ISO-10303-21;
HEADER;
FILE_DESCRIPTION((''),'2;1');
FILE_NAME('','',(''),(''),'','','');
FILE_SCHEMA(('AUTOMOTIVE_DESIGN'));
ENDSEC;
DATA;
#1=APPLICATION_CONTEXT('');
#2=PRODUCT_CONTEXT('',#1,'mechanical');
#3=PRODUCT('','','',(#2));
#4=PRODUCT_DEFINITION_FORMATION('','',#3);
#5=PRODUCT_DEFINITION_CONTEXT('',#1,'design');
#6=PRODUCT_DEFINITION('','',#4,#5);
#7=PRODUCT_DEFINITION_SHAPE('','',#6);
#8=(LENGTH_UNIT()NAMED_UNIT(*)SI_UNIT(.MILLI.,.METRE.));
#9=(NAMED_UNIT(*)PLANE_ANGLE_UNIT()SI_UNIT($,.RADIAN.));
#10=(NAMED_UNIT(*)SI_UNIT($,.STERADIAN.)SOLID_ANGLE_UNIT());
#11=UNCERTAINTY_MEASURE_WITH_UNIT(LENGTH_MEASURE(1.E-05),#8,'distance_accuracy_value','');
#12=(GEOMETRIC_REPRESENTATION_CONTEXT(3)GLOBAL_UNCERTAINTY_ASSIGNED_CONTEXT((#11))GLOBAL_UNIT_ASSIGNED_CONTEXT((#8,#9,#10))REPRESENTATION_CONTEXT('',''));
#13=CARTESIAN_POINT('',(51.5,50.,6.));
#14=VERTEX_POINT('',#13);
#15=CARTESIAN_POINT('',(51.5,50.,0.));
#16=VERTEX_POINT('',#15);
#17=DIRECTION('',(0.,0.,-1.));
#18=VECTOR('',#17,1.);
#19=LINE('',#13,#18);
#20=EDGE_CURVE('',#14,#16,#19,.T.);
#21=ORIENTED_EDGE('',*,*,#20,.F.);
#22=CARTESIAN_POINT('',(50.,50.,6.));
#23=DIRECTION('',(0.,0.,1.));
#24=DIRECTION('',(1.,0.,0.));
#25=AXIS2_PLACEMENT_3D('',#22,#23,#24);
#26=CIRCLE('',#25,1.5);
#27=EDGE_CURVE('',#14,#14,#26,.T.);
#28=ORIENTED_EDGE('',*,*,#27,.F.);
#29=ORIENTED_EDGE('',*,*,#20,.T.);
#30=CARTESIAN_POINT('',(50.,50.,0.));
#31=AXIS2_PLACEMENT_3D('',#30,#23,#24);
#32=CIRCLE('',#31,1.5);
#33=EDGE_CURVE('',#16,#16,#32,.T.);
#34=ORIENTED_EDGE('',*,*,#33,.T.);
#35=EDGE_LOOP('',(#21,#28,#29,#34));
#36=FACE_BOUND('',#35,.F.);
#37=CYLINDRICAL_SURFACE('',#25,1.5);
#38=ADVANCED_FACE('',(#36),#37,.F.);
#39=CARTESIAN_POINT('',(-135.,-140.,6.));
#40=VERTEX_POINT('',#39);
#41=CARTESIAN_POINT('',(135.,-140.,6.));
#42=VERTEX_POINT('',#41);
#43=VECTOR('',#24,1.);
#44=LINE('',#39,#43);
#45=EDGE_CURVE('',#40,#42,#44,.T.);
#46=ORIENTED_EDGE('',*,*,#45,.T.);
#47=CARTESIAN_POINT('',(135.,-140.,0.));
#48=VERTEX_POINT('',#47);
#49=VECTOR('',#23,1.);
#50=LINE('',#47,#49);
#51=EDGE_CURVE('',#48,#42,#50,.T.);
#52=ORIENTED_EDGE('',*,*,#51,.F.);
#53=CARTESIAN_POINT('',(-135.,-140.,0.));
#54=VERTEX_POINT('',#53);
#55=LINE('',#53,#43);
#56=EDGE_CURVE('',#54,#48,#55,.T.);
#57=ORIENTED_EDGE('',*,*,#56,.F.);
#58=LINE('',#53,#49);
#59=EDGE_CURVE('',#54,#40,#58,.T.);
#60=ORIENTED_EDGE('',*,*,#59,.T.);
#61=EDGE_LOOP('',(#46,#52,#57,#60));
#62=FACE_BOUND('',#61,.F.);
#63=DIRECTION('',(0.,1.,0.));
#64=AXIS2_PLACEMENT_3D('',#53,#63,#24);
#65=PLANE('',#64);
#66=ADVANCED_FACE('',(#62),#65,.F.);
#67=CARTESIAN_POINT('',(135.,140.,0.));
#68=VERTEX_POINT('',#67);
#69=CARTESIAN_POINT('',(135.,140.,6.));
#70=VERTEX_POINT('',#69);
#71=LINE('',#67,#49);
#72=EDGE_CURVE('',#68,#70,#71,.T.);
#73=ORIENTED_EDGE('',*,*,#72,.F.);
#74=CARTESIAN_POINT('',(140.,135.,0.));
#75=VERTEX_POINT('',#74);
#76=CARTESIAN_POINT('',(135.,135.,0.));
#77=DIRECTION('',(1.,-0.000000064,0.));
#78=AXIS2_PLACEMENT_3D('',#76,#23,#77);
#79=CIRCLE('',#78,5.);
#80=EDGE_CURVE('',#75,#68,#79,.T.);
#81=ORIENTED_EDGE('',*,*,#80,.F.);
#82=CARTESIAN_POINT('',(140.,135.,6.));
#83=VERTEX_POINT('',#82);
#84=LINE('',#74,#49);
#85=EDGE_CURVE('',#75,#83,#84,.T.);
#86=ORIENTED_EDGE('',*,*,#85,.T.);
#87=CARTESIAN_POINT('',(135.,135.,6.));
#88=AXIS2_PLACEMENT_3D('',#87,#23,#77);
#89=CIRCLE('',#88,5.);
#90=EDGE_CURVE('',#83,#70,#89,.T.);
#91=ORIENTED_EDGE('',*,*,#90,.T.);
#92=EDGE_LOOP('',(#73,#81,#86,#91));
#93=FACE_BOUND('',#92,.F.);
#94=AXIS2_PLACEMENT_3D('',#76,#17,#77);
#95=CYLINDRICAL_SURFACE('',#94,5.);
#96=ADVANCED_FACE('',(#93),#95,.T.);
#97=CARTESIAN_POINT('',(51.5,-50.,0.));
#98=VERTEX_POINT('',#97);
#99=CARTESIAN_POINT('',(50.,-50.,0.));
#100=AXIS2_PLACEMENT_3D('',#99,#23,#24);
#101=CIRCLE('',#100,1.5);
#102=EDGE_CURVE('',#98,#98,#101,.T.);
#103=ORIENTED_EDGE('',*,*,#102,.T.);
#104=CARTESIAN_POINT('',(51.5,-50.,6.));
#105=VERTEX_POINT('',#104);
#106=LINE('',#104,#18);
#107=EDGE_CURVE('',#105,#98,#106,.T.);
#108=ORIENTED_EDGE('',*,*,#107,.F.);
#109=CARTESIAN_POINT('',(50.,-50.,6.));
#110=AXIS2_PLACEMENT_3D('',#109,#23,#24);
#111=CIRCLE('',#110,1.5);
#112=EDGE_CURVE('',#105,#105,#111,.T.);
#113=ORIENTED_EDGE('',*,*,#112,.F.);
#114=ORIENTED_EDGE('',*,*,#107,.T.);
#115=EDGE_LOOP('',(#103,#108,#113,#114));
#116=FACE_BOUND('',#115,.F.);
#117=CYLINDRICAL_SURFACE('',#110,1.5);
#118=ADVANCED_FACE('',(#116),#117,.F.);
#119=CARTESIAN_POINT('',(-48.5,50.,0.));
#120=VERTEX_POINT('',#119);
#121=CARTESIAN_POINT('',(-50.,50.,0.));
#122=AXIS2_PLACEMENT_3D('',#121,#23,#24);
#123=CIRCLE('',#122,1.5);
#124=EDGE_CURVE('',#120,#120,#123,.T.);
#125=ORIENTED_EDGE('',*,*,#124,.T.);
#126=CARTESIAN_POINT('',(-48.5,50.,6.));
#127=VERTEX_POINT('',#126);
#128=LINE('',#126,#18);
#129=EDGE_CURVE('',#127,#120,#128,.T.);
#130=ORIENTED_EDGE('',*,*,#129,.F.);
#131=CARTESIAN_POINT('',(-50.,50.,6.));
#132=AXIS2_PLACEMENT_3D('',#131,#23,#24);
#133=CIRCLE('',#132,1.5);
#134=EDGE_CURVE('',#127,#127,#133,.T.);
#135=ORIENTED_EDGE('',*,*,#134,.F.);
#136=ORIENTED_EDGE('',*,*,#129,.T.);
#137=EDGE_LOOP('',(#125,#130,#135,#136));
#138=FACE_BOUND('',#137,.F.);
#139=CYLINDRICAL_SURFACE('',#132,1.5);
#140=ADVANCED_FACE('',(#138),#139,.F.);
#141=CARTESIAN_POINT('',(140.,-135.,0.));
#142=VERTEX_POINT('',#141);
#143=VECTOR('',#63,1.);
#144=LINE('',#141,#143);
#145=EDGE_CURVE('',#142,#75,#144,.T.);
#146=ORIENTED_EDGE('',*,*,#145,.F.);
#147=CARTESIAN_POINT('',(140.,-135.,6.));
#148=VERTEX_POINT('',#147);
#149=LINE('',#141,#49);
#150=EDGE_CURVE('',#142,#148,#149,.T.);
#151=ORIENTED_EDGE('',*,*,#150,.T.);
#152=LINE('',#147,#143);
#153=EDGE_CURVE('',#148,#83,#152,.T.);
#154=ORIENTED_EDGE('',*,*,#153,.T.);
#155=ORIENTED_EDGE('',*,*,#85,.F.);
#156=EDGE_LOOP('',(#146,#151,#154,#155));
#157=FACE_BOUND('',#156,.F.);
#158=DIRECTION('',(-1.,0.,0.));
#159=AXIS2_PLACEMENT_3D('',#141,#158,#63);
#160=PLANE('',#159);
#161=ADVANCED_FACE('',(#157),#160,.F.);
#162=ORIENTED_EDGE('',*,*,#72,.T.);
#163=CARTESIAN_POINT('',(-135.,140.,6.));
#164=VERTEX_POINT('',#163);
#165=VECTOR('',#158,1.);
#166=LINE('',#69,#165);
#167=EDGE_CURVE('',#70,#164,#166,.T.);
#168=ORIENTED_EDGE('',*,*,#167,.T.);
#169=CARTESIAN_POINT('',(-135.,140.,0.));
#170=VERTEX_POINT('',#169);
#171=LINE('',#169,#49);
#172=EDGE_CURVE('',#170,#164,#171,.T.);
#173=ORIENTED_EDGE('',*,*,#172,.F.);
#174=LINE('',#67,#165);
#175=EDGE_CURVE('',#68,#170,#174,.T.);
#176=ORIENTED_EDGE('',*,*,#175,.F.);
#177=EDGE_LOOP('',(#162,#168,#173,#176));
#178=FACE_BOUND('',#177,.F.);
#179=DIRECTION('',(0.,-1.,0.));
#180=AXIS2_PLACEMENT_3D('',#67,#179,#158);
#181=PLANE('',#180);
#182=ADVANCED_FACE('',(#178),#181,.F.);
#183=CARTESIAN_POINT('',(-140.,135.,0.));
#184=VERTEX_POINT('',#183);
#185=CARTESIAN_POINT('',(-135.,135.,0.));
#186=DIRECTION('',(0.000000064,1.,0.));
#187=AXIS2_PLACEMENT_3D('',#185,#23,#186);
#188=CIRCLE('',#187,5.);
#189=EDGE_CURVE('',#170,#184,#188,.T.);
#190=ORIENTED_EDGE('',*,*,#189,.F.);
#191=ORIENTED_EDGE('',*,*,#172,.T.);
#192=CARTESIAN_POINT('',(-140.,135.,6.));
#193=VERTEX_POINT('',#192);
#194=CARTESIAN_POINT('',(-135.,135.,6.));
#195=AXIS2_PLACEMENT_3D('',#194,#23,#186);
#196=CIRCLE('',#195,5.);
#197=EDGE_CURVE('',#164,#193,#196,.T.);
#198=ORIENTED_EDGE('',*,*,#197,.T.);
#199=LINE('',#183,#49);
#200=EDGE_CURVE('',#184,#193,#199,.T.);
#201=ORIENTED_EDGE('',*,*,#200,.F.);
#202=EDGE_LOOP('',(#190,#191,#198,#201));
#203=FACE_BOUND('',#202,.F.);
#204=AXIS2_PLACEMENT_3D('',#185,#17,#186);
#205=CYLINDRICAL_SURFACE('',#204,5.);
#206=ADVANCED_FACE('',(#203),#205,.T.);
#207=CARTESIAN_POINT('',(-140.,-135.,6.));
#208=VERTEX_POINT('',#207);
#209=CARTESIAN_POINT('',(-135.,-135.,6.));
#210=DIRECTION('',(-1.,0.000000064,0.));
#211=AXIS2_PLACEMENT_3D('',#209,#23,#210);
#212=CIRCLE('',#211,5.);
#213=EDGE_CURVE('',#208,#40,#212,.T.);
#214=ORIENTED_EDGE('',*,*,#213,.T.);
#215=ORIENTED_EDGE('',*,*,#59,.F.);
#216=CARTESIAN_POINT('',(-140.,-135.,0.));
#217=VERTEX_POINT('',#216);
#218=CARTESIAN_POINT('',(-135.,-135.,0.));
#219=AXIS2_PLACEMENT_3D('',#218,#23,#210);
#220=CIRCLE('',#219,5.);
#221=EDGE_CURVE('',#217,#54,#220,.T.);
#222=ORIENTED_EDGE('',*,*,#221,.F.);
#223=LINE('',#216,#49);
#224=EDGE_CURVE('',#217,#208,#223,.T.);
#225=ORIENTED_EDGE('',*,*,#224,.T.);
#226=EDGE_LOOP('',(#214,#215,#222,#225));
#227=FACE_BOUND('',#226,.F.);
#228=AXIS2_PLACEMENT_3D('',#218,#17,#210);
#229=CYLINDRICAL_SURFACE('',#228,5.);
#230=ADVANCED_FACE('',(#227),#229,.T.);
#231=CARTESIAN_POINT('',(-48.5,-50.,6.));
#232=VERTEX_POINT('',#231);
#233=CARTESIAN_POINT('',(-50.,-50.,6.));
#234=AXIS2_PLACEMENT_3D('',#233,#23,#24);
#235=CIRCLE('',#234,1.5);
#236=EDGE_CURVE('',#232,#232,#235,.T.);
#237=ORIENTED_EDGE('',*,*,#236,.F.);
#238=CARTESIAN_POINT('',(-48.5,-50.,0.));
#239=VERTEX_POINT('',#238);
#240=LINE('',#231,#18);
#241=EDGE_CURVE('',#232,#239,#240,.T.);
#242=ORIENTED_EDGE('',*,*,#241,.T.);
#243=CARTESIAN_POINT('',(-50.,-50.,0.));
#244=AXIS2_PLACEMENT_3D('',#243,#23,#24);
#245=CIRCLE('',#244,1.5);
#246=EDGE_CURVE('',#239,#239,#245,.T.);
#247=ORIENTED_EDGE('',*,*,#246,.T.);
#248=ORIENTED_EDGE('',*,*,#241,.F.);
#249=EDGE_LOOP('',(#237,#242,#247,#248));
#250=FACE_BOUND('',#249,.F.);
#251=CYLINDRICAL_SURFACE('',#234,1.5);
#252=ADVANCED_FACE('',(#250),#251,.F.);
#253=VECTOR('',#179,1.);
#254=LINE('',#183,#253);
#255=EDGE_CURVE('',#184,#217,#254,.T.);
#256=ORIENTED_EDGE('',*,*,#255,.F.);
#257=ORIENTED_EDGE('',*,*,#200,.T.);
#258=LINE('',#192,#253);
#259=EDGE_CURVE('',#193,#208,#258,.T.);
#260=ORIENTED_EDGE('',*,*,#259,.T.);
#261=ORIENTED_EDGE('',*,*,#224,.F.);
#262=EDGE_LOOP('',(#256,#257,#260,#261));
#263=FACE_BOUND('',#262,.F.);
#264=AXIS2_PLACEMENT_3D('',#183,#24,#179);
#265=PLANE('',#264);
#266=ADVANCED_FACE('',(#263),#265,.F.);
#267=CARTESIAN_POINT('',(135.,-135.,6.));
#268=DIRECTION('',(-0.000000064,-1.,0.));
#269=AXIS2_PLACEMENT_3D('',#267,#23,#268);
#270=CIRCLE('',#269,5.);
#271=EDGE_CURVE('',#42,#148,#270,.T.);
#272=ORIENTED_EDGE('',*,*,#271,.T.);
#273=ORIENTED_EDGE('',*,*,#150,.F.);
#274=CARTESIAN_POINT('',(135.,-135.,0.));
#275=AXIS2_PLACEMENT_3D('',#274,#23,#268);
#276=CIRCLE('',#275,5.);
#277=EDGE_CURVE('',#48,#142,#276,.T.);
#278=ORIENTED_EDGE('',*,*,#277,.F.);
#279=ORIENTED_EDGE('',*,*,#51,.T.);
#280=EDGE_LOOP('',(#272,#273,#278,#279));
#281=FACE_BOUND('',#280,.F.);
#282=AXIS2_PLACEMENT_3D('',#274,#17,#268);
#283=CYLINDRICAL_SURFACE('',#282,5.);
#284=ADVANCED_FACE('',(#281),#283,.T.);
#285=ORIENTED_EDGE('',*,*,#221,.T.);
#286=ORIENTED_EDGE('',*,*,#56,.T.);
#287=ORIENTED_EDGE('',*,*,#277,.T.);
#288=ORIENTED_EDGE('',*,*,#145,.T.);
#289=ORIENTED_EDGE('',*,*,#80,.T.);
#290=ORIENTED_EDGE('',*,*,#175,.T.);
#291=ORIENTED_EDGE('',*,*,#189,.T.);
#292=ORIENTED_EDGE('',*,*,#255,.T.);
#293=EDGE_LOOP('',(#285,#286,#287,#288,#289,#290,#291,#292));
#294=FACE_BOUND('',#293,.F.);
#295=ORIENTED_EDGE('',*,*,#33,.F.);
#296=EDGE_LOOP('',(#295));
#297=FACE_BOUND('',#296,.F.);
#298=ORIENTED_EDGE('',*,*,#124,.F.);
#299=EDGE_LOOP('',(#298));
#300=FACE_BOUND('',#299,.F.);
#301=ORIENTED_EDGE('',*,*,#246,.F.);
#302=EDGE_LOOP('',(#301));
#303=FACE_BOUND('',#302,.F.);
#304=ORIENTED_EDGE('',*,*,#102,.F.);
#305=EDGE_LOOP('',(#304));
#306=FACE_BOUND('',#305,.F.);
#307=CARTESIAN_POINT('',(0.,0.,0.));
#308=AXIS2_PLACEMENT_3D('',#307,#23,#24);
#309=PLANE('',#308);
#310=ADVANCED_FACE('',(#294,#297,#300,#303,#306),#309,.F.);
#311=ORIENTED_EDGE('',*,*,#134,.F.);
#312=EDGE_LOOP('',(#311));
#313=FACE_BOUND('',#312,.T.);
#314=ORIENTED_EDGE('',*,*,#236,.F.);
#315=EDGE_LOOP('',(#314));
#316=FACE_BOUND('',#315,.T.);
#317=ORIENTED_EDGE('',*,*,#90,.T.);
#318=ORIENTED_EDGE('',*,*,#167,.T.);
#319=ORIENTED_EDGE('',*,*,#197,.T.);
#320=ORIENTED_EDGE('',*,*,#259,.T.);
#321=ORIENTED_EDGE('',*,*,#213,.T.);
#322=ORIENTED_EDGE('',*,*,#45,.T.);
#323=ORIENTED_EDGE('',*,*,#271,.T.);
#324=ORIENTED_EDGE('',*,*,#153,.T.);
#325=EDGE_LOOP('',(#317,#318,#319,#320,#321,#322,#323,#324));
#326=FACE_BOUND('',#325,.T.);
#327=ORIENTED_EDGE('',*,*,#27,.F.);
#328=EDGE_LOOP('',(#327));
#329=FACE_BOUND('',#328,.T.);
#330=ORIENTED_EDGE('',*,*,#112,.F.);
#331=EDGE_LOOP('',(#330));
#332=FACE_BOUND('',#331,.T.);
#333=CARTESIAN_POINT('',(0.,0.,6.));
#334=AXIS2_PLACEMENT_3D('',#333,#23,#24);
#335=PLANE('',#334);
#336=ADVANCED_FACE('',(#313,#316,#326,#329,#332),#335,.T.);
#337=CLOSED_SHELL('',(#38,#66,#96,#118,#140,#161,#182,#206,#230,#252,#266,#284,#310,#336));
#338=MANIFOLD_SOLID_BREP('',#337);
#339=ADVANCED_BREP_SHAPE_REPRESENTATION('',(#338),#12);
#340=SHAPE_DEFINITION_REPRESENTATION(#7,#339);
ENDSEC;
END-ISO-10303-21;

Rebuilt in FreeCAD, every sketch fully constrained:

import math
import FreeCAD as App
import Part
import Sketcher
from FreeCAD import Vector
Q = App.Units.Quantity

doc = App.newDocument("Part")
body = doc.addObject("PartDesign::Body", "Body")

# Sketch on XY plane
sketch1 = body.newObject("Sketcher::SketchObject", "Sketch")
sketch1.AttachmentSupport = (doc.getObject("XY_Plane"), [""])
sketch1.MapMode = "FlatFace"
sketch1.addGeometry([
    Part.LineSegment(Vector(-135, -140, 0), Vector(135, -140, 0)),  # 0
    Part.ArcOfCircle(Part.Circle(Vector(135, -135, 0), Vector(0, 0, 1), 5), math.radians(-90), math.radians(0)),  # 1
    Part.LineSegment(Vector(140, -135, 0), Vector(140, 135, 0)),  # 2
    Part.ArcOfCircle(Part.Circle(Vector(135, 135, 0), Vector(0, 0, 1), 5), math.radians(0), math.radians(90)),  # 3
    Part.LineSegment(Vector(135, 140, 0), Vector(-135, 140, 0)),  # 4
    Part.ArcOfCircle(Part.Circle(Vector(-135, 135, 0), Vector(0, 0, 1), 5), math.radians(90), math.radians(180)),  # 5
    Part.LineSegment(Vector(-140, 135, 0), Vector(-140, -135, 0)),  # 6
    Part.ArcOfCircle(Part.Circle(Vector(-135, -135, 0), Vector(0, 0, 1), 5), math.radians(180), math.radians(270)),  # 7
], False)
sketch1.addConstraint([
    Sketcher.Constraint("Tangent", 0, 2, 1, 1),
    Sketcher.Constraint("Tangent", 1, 2, 2, 1),
    Sketcher.Constraint("Tangent", 2, 2, 3, 1),
    Sketcher.Constraint("Tangent", 3, 2, 4, 1),
    Sketcher.Constraint("Tangent", 4, 2, 5, 1),
    Sketcher.Constraint("Tangent", 5, 2, 6, 1),
    Sketcher.Constraint("Tangent", 6, 2, 7, 1),
    Sketcher.Constraint("Tangent", 7, 2, 0, 1),
    Sketcher.Constraint("Horizontal", 0),
    Sketcher.Constraint("Vertical", 2),
    Sketcher.Constraint("Horizontal", 4),
    Sketcher.Constraint("Vertical", 6),
    Sketcher.Constraint("Equal", 1, 3),
    Sketcher.Constraint("Equal", 3, 5),
    Sketcher.Constraint("Equal", 5, 7),
    Sketcher.Constraint("Symmetric", 1, 3, 5, 3, -1, 1),
    Sketcher.Constraint("Equal", 4, 2),
    Sketcher.Constraint("Radius", 1, Q("5 mm")),
    Sketcher.Constraint("DistanceX", 0, 1, 0, 2, Q("270 mm")),
])
pad1 = body.newObject("PartDesign::Pad", "Pad")
pad1.Profile = sketch1
pad1.Length = 6

# Sketch on XY plane
sketch2 = body.newObject("Sketcher::SketchObject", "Sketch001")
sketch2.AttachmentSupport = (doc.getObject("XY_Plane"), [""])
sketch2.MapMode = "FlatFace"
sketch2.AttachmentOffset = App.Placement(Vector(0, 0, 6), App.Rotation())
sketch2.addGeometry([
    Part.Circle(Vector(-50, 50, 0), Vector(0, 0, 1), 1.5),
    Part.Circle(Vector(50, 50, 0), Vector(0, 0, 1), 1.5),
    Part.Circle(Vector(50, -50, 0), Vector(0, 0, 1), 1.5),
    Part.Circle(Vector(-50, -50, 0), Vector(0, 0, 1), 1.5),
], False)
sketch2.addConstraint([
    Sketcher.Constraint("Equal", 0, 1),
    Sketcher.Constraint("Equal", 1, 2),
    Sketcher.Constraint("Equal", 2, 3),
    Sketcher.Constraint("Symmetric", 0, 3, 2, 3, -1, 1),
    Sketcher.Constraint("Symmetric", 1, 3, 3, 3, -1, 1),
    Sketcher.Constraint("Symmetric", 0, 3, 1, 3, -2),
    Sketcher.Constraint("Diameter", 0, Q("3 mm")),
    Sketcher.Constraint("DistanceX", 0, 3, -1, 1, Q("50 mm")),
    Sketcher.Constraint("DistanceY", -1, 1, 0, 3, Q("50 mm")),
])
pocket1 = body.newObject("PartDesign::Pocket", "Pocket")
pocket1.Profile = sketch2
pocket1.Type = "ThroughAll"

doc.recompute()
